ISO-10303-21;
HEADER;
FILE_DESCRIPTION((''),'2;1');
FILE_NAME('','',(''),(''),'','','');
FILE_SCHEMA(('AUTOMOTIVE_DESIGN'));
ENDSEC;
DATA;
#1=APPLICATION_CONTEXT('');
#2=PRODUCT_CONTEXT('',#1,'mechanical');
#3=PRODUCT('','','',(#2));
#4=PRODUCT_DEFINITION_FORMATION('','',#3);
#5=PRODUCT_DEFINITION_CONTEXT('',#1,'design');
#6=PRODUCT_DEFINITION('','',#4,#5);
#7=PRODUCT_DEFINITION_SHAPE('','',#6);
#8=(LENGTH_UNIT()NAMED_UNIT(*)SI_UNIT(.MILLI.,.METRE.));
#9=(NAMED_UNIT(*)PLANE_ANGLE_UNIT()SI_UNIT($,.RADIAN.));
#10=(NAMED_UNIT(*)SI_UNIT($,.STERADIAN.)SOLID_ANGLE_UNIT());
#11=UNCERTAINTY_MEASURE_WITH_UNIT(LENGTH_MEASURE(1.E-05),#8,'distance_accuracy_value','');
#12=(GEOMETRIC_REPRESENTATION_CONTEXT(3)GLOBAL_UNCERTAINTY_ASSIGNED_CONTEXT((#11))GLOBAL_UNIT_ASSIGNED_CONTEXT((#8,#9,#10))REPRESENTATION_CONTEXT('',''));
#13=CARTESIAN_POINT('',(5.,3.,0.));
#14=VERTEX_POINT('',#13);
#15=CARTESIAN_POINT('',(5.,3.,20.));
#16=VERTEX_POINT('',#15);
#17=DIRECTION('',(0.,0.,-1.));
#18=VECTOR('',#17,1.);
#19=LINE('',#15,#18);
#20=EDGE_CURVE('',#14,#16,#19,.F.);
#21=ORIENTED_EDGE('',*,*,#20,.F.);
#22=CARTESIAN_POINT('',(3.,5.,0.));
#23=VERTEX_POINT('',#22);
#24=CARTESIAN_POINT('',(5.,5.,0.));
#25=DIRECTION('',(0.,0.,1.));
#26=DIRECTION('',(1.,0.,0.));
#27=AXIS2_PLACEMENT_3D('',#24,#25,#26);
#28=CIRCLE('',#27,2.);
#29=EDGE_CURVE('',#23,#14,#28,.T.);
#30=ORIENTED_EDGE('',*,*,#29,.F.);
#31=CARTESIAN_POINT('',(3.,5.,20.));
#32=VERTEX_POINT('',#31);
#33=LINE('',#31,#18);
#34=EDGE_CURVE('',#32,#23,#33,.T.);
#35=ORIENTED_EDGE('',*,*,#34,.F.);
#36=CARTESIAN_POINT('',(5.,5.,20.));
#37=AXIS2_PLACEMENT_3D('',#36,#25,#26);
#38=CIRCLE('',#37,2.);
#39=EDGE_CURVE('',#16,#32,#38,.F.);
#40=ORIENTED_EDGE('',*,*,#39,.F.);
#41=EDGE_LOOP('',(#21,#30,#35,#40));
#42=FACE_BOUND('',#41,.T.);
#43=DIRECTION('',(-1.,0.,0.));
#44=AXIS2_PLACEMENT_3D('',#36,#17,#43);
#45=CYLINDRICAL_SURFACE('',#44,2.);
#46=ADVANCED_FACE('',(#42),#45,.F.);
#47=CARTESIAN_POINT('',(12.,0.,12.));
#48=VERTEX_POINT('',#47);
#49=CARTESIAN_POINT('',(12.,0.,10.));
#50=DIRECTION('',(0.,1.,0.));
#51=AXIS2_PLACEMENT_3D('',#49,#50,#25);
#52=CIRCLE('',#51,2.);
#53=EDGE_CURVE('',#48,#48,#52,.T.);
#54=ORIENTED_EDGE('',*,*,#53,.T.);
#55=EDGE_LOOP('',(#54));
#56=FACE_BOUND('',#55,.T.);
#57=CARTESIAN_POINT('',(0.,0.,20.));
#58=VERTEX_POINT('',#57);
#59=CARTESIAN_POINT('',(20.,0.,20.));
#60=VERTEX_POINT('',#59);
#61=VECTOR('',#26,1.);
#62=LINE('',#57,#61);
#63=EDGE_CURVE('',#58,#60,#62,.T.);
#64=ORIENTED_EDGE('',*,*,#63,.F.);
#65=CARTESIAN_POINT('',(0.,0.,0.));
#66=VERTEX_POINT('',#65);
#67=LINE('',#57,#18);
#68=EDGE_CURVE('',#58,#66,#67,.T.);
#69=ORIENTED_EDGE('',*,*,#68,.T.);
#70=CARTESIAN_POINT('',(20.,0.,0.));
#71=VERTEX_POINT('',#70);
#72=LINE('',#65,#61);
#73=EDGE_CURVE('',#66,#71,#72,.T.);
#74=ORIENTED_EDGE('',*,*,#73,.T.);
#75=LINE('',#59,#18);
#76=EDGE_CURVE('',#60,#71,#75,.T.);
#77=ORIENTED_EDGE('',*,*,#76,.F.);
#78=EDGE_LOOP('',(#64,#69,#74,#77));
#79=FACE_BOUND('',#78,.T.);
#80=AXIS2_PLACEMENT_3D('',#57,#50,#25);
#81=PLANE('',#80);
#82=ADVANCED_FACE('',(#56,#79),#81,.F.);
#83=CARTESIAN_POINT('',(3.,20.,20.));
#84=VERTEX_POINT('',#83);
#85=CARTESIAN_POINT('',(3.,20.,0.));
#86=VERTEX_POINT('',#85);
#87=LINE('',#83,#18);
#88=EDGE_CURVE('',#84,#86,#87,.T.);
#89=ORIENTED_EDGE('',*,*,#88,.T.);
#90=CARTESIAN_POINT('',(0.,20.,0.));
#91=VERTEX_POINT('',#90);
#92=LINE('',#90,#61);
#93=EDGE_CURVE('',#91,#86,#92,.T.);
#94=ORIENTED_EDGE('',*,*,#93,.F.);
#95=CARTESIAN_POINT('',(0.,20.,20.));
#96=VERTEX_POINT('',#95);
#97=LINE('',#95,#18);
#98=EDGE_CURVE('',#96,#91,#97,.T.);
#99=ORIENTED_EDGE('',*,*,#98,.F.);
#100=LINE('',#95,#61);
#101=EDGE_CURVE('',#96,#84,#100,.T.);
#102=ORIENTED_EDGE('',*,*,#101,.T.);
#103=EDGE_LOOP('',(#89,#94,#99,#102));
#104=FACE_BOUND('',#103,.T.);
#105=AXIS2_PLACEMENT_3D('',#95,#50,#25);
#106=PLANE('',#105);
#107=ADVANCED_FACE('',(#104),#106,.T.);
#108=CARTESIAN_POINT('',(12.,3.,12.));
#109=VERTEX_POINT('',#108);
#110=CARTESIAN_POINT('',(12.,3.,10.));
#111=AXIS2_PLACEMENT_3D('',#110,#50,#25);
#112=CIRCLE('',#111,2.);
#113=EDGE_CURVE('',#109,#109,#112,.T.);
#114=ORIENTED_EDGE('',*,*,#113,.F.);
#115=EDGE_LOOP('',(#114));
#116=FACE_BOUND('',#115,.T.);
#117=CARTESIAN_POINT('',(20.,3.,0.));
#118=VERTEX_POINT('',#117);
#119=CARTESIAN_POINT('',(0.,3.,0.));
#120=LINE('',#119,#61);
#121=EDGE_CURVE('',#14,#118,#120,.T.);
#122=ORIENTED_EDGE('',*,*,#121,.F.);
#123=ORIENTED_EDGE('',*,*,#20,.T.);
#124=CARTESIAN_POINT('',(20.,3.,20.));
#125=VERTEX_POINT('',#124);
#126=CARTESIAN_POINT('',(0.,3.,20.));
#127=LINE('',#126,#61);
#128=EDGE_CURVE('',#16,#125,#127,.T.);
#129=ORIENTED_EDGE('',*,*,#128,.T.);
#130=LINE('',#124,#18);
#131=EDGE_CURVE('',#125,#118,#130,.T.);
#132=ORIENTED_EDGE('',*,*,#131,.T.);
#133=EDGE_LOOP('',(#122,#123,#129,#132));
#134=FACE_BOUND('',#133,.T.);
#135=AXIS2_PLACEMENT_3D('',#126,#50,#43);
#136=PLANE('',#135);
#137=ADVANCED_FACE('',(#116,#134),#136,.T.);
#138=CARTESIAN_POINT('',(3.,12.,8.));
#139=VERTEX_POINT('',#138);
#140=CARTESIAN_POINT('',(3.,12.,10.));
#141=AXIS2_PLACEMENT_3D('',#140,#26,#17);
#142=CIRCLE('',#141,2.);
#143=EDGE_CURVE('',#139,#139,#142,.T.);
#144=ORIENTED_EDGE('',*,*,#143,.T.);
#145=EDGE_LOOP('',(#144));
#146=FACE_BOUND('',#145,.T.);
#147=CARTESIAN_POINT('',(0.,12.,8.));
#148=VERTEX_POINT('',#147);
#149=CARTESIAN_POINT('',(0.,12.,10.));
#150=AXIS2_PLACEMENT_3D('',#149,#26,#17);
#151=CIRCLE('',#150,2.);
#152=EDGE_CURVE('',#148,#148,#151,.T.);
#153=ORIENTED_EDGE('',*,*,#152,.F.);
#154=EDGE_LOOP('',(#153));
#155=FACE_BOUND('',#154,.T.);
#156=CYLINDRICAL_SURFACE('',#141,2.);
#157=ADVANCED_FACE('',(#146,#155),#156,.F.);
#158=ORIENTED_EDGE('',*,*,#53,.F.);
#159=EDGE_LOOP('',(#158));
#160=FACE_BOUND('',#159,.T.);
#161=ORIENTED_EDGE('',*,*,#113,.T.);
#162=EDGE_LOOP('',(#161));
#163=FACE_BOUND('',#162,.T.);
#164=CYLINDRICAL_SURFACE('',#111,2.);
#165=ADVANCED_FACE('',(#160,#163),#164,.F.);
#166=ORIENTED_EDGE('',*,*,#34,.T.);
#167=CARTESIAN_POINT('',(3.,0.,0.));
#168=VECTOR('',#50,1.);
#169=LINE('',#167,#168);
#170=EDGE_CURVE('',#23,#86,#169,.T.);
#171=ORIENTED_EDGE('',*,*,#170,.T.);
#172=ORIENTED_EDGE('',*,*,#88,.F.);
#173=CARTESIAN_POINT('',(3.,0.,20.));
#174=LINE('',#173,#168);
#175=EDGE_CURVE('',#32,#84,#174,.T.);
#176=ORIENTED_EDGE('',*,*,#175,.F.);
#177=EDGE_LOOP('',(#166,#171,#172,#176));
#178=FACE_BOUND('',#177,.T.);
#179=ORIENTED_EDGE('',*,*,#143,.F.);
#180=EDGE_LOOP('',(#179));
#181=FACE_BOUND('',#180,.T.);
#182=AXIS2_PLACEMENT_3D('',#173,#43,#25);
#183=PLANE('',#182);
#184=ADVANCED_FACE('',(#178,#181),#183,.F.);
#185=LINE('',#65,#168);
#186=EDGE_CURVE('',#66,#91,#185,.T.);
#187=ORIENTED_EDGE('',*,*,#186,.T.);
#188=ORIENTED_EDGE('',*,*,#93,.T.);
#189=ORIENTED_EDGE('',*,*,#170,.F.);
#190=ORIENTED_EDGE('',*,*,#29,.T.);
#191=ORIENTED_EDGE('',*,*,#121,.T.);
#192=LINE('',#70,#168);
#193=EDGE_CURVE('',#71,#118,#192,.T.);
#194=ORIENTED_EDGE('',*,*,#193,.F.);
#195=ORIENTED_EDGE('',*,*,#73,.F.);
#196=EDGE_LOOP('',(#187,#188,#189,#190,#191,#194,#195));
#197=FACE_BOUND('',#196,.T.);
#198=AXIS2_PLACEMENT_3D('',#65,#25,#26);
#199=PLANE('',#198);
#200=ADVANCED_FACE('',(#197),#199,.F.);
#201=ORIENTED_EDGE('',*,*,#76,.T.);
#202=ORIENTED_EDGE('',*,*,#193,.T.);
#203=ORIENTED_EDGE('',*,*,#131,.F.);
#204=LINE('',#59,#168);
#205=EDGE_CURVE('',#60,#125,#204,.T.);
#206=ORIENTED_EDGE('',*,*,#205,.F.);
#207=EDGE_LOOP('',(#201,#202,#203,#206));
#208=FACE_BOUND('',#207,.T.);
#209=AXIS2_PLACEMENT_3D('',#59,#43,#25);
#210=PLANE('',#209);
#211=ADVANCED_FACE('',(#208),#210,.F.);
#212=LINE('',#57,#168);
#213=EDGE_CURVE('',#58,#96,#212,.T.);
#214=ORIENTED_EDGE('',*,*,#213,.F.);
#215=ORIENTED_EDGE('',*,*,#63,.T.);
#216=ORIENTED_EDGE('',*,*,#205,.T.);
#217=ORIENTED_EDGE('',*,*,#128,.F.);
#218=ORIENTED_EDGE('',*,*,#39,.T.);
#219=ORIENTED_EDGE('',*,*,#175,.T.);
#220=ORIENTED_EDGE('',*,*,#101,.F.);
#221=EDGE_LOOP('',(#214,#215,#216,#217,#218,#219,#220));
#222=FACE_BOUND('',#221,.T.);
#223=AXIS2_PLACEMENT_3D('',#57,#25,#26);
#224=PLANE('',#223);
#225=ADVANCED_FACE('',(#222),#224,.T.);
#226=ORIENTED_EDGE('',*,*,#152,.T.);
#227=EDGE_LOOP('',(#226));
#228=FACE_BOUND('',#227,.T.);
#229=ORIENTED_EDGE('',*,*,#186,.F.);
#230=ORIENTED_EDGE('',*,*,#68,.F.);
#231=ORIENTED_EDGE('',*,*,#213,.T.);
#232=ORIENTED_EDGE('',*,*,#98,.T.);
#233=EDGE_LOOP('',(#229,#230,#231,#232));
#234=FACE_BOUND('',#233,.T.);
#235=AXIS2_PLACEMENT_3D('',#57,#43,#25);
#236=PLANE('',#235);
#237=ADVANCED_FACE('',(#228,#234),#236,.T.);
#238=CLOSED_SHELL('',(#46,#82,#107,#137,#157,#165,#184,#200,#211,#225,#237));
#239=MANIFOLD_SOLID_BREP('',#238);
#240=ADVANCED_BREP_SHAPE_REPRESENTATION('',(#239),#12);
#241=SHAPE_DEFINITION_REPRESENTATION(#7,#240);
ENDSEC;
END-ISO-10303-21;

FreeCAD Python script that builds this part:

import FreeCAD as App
import Part
import Sketcher

V = App.Vector


def edges_at(feature, points):
    """Names of the edges that pass closest to the given points."""
    edges = feature.Shape.Edges
    near = lambda p: min(range(len(edges)), key=lambda i: edges[i].distToShape(Part.Vertex(*p))[0])
    return sorted({f"Edge{near(p) + 1}" for p in points})


def add_polygon(sketch, points):
    """Adds a closed chain of lines whose ends are joined by coincident constraints."""
    first, n = sketch.GeometryCount, len(points)
    for a, b in zip(points, points[1:] + points[:1]):
        sketch.addGeometry(Part.LineSegment(App.Vector(*a, 0), App.Vector(*b, 0)), False)
    for i in range(n):
        sketch.addConstraint(Sketcher.Constraint("Coincident", first + i, 2, first + (i + 1) % n, 1))

doc = App.newDocument("Part")
params = doc.addObject("Spreadsheet::Sheet", "Params")
for row, (alias, value) in enumerate([
    ("sketch1_width", "17 mm"),
    ("sketch1_width2", "3 mm"),
    ("pad1_length", "20 mm"),
    ("fillet_radius", "2 mm"),
    ("sketch2_diameter", "4 mm"),
    ("hole_diameter", "4 mm"),
    ("sketch3_diameter", "4 mm"),
    ("hole2_diameter", "4 mm"),
], start=1):
    params.set(f"A{row}", alias)
    params.set(f"B{row}", "=" + value)
    params.setAlias(f"B{row}", alias)

body = doc.addObject("PartDesign::Body", "Body")

# Sketch on XY plane
sketch1 = body.newObject("Sketcher::SketchObject", "Sketch")
sketch1.AttachmentSupport = (doc.getObject("XY_Plane"), [""])
sketch1.MapMode = "FlatFace"
add_polygon(sketch1, [(20, 3), (3, 3), (3, 20), (0, 20), (0, 0), (20, 0)])  # lines 0-5
sketch1.addConstraint([
    Sketcher.Constraint("Horizontal", 0),
    Sketcher.Constraint("Vertical", 1),
    Sketcher.Constraint("Horizontal", 2),
    Sketcher.Constraint("Vertical", 3),
    Sketcher.Constraint("Horizontal", 4),
    Sketcher.Constraint("Vertical", 5),
    Sketcher.Constraint("Coincident", 3, 2, -1, 1),
    Sketcher.Constraint("Equal", 0, 1),
    Sketcher.Constraint("Equal", 4, 3),
    Sketcher.Constraint("DistanceX", 0, 2, 0, 1, 17.0),
    Sketcher.Constraint("DistanceX", 2, 2, 2, 1, 3.0),
])
sketch1.setExpression("Constraints[15]", "Params.sketch1_width")
sketch1.setExpression("Constraints[16]", "Params.sketch1_width2")
pad1 = body.newObject("PartDesign::Pad", "Pad")
pad1.Profile = sketch1
pad1.setExpression("Length", "Params.pad1_length")
doc.recompute()

fillet = body.newObject("PartDesign::Fillet", "Fillet")
fillet.Base = (pad1, edges_at(pad1, [(3, 3, 10)]))
fillet.setExpression("Radius", "Params.fillet_radius")

# Sketch on YZ plane
sketch2 = body.newObject("Sketcher::SketchObject", "Sketch001")
sketch2.AttachmentSupport = (doc.getObject("YZ_Plane"), [""])
sketch2.MapMode = "FlatFace"
sketch2.AttachmentOffset = App.Placement(V(0, 0, 3), App.Rotation())
sketch2.addGeometry(Part.Circle(V(12, 10, 0), V(0, 0, 1), 2), False)
sketch2.addConstraint([
    Sketcher.Constraint("Diameter", 0, 4.0),
    Sketcher.Constraint("DistanceX", -1, 1, 0, 3, 12.0),
    Sketcher.Constraint("DistanceY", -1, 1, 0, 3, 10.0),
])
sketch2.setExpression("Constraints[0]", "Params.sketch2_diameter")
doc.recompute()
hole = body.newObject("PartDesign::Hole", "Hole")
hole.Profile = sketch2
hole.ThreadType = "None"
hole.setExpression("Diameter", "Params.hole_diameter")
hole.DepthType = "ThroughAll"

# Sketch on XZ plane
sketch3 = body.newObject("Sketcher::SketchObject", "Sketch002")
sketch3.AttachmentSupport = (doc.getObject("XZ_Plane"), [""])
sketch3.MapMode = "FlatFace"
sketch3.AttachmentOffset = App.Placement(V(0, 0, -3), App.Rotation())
sketch3.addGeometry(Part.Circle(V(12, 10, 0), V(0, 0, 1), 2), False)
sketch3.addConstraint([
    Sketcher.Constraint("Diameter", 0, 4.0),
    Sketcher.Constraint("DistanceX", -1, 1, 0, 3, 12.0),
    Sketcher.Constraint("DistanceY", -1, 1, 0, 3, 10.0),
])
sketch3.setExpression("Constraints[0]", "Params.sketch3_diameter")
doc.recompute()
hole2 = body.newObject("PartDesign::Hole", "Hole001")
hole2.Profile = sketch3
hole2.ThreadType = "None"
hole2.setExpression("Diameter", "Params.hole2_diameter")
hole2.DepthType = "ThroughAll"
hole2.Reversed = True

doc.recompute()
